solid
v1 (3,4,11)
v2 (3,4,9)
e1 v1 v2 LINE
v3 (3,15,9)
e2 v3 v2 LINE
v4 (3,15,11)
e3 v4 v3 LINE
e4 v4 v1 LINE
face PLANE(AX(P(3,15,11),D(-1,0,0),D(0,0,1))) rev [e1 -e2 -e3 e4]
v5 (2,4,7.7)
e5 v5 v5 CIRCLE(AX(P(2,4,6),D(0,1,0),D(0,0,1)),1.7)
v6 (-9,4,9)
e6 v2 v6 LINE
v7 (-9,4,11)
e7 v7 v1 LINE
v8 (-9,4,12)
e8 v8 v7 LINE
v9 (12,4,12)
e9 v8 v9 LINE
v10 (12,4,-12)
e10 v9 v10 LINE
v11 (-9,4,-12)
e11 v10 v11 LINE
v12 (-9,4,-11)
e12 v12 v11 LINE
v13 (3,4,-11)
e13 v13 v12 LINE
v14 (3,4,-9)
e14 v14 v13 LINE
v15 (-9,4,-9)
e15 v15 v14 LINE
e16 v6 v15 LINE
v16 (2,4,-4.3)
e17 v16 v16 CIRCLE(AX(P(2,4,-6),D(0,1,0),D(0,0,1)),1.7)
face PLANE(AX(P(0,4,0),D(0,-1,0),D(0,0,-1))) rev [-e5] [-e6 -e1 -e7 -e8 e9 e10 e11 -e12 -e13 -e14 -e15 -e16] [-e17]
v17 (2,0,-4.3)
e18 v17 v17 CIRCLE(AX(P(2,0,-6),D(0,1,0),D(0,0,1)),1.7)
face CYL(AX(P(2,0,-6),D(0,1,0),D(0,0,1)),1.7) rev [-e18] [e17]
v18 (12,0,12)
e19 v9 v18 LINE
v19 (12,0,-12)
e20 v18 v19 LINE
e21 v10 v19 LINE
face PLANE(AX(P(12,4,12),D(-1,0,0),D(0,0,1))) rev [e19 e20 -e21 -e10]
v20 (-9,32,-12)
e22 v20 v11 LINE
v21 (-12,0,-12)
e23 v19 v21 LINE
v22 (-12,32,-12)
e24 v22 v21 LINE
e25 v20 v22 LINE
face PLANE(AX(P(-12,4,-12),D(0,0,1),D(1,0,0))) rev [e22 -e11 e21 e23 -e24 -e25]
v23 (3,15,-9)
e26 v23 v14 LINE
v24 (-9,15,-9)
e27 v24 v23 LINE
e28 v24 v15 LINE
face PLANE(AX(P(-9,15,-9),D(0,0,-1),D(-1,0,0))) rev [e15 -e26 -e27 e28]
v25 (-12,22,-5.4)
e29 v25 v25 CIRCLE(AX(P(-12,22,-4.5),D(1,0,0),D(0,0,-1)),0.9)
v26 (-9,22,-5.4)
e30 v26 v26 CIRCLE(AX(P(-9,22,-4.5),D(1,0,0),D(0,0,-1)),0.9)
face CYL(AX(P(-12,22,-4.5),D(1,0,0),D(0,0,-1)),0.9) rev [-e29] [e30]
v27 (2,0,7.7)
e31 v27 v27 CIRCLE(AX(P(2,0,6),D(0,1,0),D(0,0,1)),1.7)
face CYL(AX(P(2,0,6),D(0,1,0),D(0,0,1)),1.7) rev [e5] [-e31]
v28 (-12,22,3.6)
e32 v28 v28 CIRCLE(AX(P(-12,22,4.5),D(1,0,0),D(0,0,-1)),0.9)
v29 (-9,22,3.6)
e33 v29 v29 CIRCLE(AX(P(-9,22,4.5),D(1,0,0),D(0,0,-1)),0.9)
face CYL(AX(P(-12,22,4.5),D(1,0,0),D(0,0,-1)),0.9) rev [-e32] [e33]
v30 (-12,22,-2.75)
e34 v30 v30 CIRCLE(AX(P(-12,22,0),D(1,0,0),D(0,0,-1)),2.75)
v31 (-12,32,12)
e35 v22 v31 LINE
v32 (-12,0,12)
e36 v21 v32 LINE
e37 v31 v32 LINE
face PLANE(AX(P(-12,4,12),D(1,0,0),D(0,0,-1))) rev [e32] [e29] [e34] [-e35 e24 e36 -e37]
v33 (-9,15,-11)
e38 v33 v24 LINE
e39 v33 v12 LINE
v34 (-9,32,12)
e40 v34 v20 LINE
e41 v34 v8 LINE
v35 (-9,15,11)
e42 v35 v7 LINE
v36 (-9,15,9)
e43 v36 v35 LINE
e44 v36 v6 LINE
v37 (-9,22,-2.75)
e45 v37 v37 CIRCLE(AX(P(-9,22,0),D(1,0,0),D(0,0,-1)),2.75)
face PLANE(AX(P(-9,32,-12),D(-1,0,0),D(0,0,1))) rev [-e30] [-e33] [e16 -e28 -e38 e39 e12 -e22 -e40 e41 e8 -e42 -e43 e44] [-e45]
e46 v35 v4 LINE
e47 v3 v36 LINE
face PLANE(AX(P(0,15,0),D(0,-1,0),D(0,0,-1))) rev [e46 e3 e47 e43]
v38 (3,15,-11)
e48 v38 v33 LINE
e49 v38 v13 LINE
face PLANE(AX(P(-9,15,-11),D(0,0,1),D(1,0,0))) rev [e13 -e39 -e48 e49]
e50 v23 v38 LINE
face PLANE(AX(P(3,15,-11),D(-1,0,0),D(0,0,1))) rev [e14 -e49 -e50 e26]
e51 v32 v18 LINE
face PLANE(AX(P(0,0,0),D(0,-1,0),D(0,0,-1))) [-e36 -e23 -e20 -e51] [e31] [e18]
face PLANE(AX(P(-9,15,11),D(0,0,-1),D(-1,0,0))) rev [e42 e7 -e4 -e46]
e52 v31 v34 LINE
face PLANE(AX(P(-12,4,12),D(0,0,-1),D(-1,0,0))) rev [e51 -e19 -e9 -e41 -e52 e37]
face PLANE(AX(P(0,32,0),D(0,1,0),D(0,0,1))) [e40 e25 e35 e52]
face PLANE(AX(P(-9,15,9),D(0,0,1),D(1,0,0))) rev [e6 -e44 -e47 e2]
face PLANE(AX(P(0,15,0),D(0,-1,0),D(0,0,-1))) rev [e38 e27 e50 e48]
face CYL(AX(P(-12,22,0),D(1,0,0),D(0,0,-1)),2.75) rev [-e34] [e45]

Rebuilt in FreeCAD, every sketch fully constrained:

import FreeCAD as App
import Part
import Sketcher

V = App.Vector
Q = App.Units.Quantity

doc = App.newDocument("Part")
params = doc.addObject("Spreadsheet::Sheet", "Params")
for row, (alias, value) in enumerate([
    ("sketch1_width", "24 mm"),
    ("pad1_length", "4 mm"),
    ("sketch2_width", "3 mm"),
    ("sketch2_height", "24 mm"),
    ("pad2_length", "28 mm"),
    ("sketch3_diameter", "5.5 mm"),
    ("sketch3_diameter2", "1.8 mm"),
    ("pocket1_length", "3 mm"),
    ("sketch4_diameter", "3.4 mm"),
    ("pocket2_length", "4 mm"),
    ("sketch5_width", "12 mm"),
    ("sketch5_height", "2 mm"),
    ("pad3_length", "11 mm"),
], start=1):
    params.set(f"A{row}", alias)
    params.set(f"B{row}", "=" + value)
    params.setAlias(f"B{row}", alias)

body = doc.addObject("PartDesign::Body", "Body")

# Sketch on XZ plane
sketch1 = body.newObject("Sketcher::SketchObject", "Sketch")
sketch1.AttachmentSupport = (doc.getObject("XZ_Plane"), [""])
sketch1.MapMode = "FlatFace"
sketch1.addGeometry([
    Part.LineSegment(V(-12, -12, 0), V(-12, 12, 0)),
    Part.LineSegment(V(-12, 12, 0), V(12, 12, 0)),
    Part.LineSegment(V(12, 12, 0), V(12, -12, 0)),
    Part.LineSegment(V(12, -12, 0), V(-12, -12, 0)),
], False)
sketch1.addConstraint([
    Sketcher.Constraint("Coincident", 0, 2, 1, 1),
    Sketcher.Constraint("Coincident", 1, 2, 2, 1),
    Sketcher.Constraint("Coincident", 2, 2, 3, 1),
    Sketcher.Constraint("Coincident", 3, 2, 0, 1),
    Sketcher.Constraint("Vertical", 0),
    Sketcher.Constraint("Horizontal", 1),
    Sketcher.Constraint("Vertical", 2),
    Sketcher.Constraint("Horizontal", 3),
    Sketcher.Constraint("Symmetric", 0, 2, 2, 2, -1, 1),
    Sketcher.Constraint("Equal", 3, 0),
    Sketcher.Constraint("DistanceX", 1, 1, 1, 2, Q("24 mm")),
])
sketch1.setExpression("Constraints[10]", "Params.sketch1_width")
pad1 = body.newObject("PartDesign::Pad", "Pad")
pad1.Profile = sketch1
pad1.setExpression("Length", "Params.pad1_length")
pad1.Reversed = True

# Sketch on XZ plane
sketch2 = body.newObject("Sketcher::SketchObject", "Sketch001")
sketch2.AttachmentSupport = (doc.getObject("XZ_Plane"), [""])
sketch2.MapMode = "FlatFace"
sketch2.AttachmentOffset = App.Placement(V(0, 0, -4), App.Rotation())
sketch2.addGeometry([
    Part.LineSegment(V(-12, -12, 0), V(-12, 12, 0)),
    Part.LineSegment(V(-12, 12, 0), V(-9, 12, 0)),
    Part.LineSegment(V(-9, 12, 0), V(-9, -12, 0)),
    Part.LineSegment(V(-9, -12, 0), V(-12, -12, 0)),
], False)
sketch2.addConstraint([
    Sketcher.Constraint("Coincident", 0, 2, 1, 1),
    Sketcher.Constraint("Coincident", 1, 2, 2, 1),
    Sketcher.Constraint("Coincident", 2, 2, 3, 1),
    Sketcher.Constraint("Coincident", 3, 2, 0, 1),
    Sketcher.Constraint("Vertical", 0),
    Sketcher.Constraint("Horizontal", 1),
    Sketcher.Constraint("Vertical", 2),
    Sketcher.Constraint("Horizontal", 3),
    Sketcher.Constraint("DistanceX", 1, 1, 1, 2, Q("3 mm")),
    Sketcher.Constraint("DistanceY", 0, 1, 0, 2, Q("24 mm")),
    Sketcher.Constraint("DistanceX", 0, 2, -1, 1, Q("12 mm")),
    Sketcher.Constraint("DistanceY", -1, 1, 0, 2, Q("12 mm")),
])
sketch2.setExpression("Constraints[8]", "Params.sketch2_width")
sketch2.setExpression("Constraints[9]", "Params.sketch2_height")
pad2 = body.newObject("PartDesign::Pad", "Pad001")
pad2.Profile = sketch2
pad2.setExpression("Length", "Params.pad2_length")
pad2.Reversed = True

# Sketch on YZ plane
sketch3 = body.newObject("Sketcher::SketchObject", "Sketch002")
sketch3.AttachmentSupport = (doc.getObject("YZ_Plane"), [""])
sketch3.MapMode = "FlatFace"
sketch3.AttachmentOffset = App.Placement(V(0, 0, -9), App.Rotation())
sketch3.addGeometry([
    Part.Circle(V(22, 0, 0), V(0, 0, 1), 2.75),
    Part.Circle(V(22, -4.5, 0), V(0, 0, 1), 0.9),
    Part.Circle(V(22, 4.5, 0), V(0, 0, 1), 0.9),
], False)
sketch3.addConstraint([
    Sketcher.Constraint("Equal", 1, 2),
    Sketcher.Constraint("Symmetric", 1, 3, 2, 3, -1),
    Sketcher.Constraint("PointOnObject", 0, 3, -1),
    Sketcher.Constraint("Vertical", 0, 3, 1, 3),
    Sketcher.Constraint("Diameter", 0, Q("5.5 mm")),
    Sketcher.Constraint("Diameter", 1, Q("1.8 mm")),
    Sketcher.Constraint("DistanceX", -1, 1, 0, 3, Q("22 mm")),
    Sketcher.Constraint("DistanceY", 1, 3, 2, 3, Q("9 mm")),
])
sketch3.setExpression("Constraints[4]", "Params.sketch3_diameter")
sketch3.setExpression("Constraints[5]", "Params.sketch3_diameter2")
pocket1 = body.newObject("PartDesign::Pocket", "Pocket")
pocket1.Profile = sketch3
pocket1.setExpression("Length", "Params.pocket1_length")

# Sketch on XZ plane
sketch4 = body.newObject("Sketcher::SketchObject", "Sketch003")
sketch4.AttachmentSupport = (doc.getObject("XZ_Plane"), [""])
sketch4.MapMode = "FlatFace"
sketch4.AttachmentOffset = App.Placement(V(0, 0, -4), App.Rotation())
sketch4.addGeometry([
    Part.Circle(V(2, -6, 0), V(0, 0, 1), 1.7),
    Part.Circle(V(2, 6, 0), V(0, 0, 1), 1.7),
], False)
sketch4.addConstraint([
    Sketcher.Constraint("Equal", 0, 1),
    Sketcher.Constraint("Symmetric", 0, 3, 1, 3, -1),
    Sketcher.Constraint("Diameter", 0, Q("3.4 mm")),
    Sketcher.Constraint("DistanceX", -1, 1, 0, 3, Q("2 mm")),
    Sketcher.Constraint("DistanceY", 0, 3, -1, 1, Q("6 mm")),
])
sketch4.setExpression("Constraints[2]", "Params.sketch4_diameter")
pocket2 = body.newObject("PartDesign::Pocket", "Pocket001")
pocket2.Profile = sketch4
pocket2.setExpression("Length", "Params.pocket2_length")
pocket2.Reversed = True

# Sketch on XZ plane
sketch5 = body.newObject("Sketcher::SketchObject", "Sketch004")
sketch5.AttachmentSupport = (doc.getObject("XZ_Plane"), [""])
sketch5.MapMode = "FlatFace"
sketch5.AttachmentOffset = App.Placement(V(0, 0, -4), App.Rotation())
sketch5.addGeometry([
    Part.LineSegment(V(-9, 9, 0), V(-9, 11, 0)),  # 0
    Part.LineSegment(V(-9, 11, 0), V(3, 11, 0)),  # 1
    Part.LineSegment(V(3, 11, 0), V(3, 9, 0)),  # 2
    Part.LineSegment(V(3, 9, 0), V(-9, 9, 0)),  # 3
    Part.LineSegment(V(-9, -11, 0), V(-9, -9, 0)),  # 4
    Part.LineSegment(V(-9, -9, 0), V(3, -9, 0)),  # 5
    Part.LineSegment(V(3, -9, 0), V(3, -11, 0)),  # 6
    Part.LineSegment(V(3, -11, 0), V(-9, -11, 0)),  # 7
], False)
sketch5.addConstraint([
    Sketcher.Constraint("Coincident", 0, 2, 1, 1),
    Sketcher.Constraint("Coincident", 1, 2, 2, 1),
    Sketcher.Constraint("Coincident", 2, 2, 3, 1),
    Sketcher.Constraint("Coincident", 3, 2, 0, 1),
    Sketcher.Constraint("Coincident", 4, 2, 5, 1),
    Sketcher.Constraint("Coincident", 5, 2, 6, 1),
    Sketcher.Constraint("Coincident", 6, 2, 7, 1),
    Sketcher.Constraint("Coincident", 7, 2, 4, 1),
    Sketcher.Constraint("Vertical", 0),
    Sketcher.Constraint("Horizontal", 1),
    Sketcher.Constraint("Vertical", 2),
    Sketcher.Constraint("Horizontal", 3),
    Sketcher.Constraint("Vertical", 4),
    Sketcher.Constraint("Horizontal", 5),
    Sketcher.Constraint("Vertical", 6),
    Sketcher.Constraint("Horizontal", 7),
    Sketcher.Constraint("Symmetric", 3, 2, 4, 2, -1),
    Sketcher.Constraint("Symmetric", 1, 2, 6, 2, -1),
    Sketcher.Constraint("DistanceX", 1, 1, 1, 2, Q("12 mm")),
    Sketcher.Constraint("DistanceY", 0, 1, 0, 2, Q("2 mm")),
    Sketcher.Constraint("DistanceX", 0, 2, -1, 1, Q("9 mm")),
    Sketcher.Constraint("DistanceY", -1, 1, 0, 2, Q("11 mm")),
])
sketch5.setExpression("Constraints[18]", "Params.sketch5_width")
sketch5.setExpression("Constraints[19]", "Params.sketch5_height")
pad3 = body.newObject("PartDesign::Pad", "Pad002")
pad3.Profile = sketch5
pad3.setExpression("Length", "Params.pad3_length")
pad3.Reversed = True

doc.recompute()
